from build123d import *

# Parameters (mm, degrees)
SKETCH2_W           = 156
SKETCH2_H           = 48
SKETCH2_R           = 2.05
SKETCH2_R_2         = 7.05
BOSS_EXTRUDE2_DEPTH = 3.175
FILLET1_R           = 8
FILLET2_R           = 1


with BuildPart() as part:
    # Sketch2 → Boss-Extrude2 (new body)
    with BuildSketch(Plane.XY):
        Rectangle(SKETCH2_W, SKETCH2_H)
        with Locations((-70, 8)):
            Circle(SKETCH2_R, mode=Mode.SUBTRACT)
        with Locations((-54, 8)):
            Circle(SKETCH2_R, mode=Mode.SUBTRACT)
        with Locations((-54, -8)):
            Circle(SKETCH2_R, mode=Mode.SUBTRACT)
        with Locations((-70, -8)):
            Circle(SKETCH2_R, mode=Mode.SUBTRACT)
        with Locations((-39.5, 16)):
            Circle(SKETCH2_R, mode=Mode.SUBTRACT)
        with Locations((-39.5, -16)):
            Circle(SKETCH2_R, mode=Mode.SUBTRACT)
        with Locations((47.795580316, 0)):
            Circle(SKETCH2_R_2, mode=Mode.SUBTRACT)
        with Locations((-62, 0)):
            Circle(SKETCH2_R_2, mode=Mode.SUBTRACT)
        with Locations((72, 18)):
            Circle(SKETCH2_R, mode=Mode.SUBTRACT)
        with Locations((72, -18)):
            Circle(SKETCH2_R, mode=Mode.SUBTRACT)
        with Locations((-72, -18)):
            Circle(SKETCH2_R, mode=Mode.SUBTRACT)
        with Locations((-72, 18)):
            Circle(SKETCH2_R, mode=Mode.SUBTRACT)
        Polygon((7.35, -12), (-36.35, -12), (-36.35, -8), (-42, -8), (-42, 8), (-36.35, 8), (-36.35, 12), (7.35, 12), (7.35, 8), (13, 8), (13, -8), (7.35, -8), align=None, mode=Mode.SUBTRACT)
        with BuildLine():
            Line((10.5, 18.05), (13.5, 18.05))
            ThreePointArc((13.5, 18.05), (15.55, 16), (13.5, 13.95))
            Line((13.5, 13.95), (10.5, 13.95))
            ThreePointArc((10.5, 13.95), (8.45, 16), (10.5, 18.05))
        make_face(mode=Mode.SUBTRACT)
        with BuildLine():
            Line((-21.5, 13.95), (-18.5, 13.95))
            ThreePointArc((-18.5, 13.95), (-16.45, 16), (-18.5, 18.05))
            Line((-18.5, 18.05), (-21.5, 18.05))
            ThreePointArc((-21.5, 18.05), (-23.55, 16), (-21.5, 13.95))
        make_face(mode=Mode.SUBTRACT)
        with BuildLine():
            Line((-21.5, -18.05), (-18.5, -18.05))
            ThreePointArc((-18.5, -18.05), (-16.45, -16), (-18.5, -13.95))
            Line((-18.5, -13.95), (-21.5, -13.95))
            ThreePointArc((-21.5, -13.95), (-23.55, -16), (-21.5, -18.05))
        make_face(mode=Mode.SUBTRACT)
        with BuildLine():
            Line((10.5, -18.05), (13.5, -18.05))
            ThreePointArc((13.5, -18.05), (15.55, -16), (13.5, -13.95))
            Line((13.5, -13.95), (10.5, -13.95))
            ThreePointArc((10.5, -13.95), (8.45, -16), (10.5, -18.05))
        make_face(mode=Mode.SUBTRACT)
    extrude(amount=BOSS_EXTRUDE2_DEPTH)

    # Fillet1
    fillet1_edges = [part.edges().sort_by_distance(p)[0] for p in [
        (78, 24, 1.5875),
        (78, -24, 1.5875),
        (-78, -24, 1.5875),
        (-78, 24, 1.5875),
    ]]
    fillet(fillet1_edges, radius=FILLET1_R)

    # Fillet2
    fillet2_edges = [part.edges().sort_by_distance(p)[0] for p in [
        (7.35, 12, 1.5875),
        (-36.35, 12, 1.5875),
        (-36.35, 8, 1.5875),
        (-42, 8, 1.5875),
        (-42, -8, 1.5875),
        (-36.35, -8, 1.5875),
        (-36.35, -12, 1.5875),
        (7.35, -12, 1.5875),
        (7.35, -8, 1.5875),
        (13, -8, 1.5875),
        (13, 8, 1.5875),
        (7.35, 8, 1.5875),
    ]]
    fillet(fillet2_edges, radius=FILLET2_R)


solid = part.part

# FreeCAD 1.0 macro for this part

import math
import FreeCAD as App
import Part
import Sketcher


def edges_at(feature, points):
    """Names of the edges that pass closest to the given points."""
    edges = feature.Shape.Edges
    near = lambda p: min(range(len(edges)), key=lambda i: edges[i].distToShape(Part.Vertex(*p))[0])
    return sorted({f"Edge{near(p) + 1}" for p in points})

doc = App.newDocument("Part")
params = doc.addObject("Spreadsheet::Sheet", "Params")
for row, (alias, value) in enumerate([
    ("sketch1_diameter", "4.1 mm"),
    ("sketch1_diameter2", "14.1 mm"),
    ("sketch1_width", "156 mm"),
    ("sketch1_width2", "3 mm"),
    ("sketch1_height", "48 mm"),
    ("pad1_length", "3.175 mm"),
    ("fillet_radius", "8 mm"),
    ("fillet2_radius", "1 mm"),
], start=1):
    params.set(f"A{row}", alias)
    params.set(f"B{row}", "=" + value)
    params.setAlias(f"B{row}", alias)

body = doc.addObject("PartDesign::Body", "Body")

sketch1 = body.newObject("Sketcher::SketchObject", "Sketch")
sketch1.AttachmentSupport = (doc.getObject("XY_Plane"), [""])
sketch1.MapMode = "FlatFace"
sketch1.addGeometry([
    Part.LineSegment(App.Vector(-78, 24, 0), App.Vector(-78, -24, 0)),
    Part.LineSegment(App.Vector(-78, -24, 0), App.Vector(78, -24, 0)),
    Part.LineSegment(App.Vector(78, -24, 0), App.Vector(78, 24, 0)),
    Part.LineSegment(App.Vector(78, 24, 0), App.Vector(-78, 24, 0)),
    Part.Circle(App.Vector(-72, -18, 0), App.Vector(0, 0, 1), 2.05),
    Part.Circle(App.Vector(-39.5, -16, 0), App.Vector(0, 0, 1), 2.05),
    Part.LineSegment(App.Vector(-18.5, -18.05, 0), App.Vector(-21.5, -18.05, 0)),
    Part.ArcOfCircle(Part.Circle(App.Vector(-21.5, -16, 0), App.Vector(0, 0, 1), 2.05), math.radians(90), math.radians(270)),
    Part.LineSegment(App.Vector(-21.5, -13.95, 0), App.Vector(-18.5, -13.95, 0)),
    Part.ArcOfCircle(Part.Circle(App.Vector(-18.5, -16, 0), App.Vector(0, 0, 1), 2.05), math.radians(-90), math.radians(90)),
    Part.Circle(App.Vector(-70, -8, 0), App.Vector(0, 0, 1), 2.05),
    Part.Circle(App.Vector(-54, -8, 0), App.Vector(0, 0, 1), 2.05),
    Part.LineSegment(App.Vector(13.5, -18.05, 0), App.Vector(10.5, -18.05, 0)),
    Part.ArcOfCircle(Part.Circle(App.Vector(10.5, -16, 0), App.Vector(0, 0, 1), 2.05), math.radians(90), math.radians(270)),
    Part.LineSegment(App.Vector(10.5, -13.95, 0), App.Vector(13.5, -13.95, 0)),
    Part.ArcOfCircle(Part.Circle(App.Vector(13.5, -16, 0), App.Vector(0, 0, 1), 2.05), math.radians(-90), math.radians(90)),
    Part.Circle(App.Vector(72, -18, 0), App.Vector(0, 0, 1), 2.05),
    Part.Circle(App.Vector(-62, 0, 0), App.Vector(0, 0, 1), 7.05),
    Part.Circle(App.Vector(-70, 8, 0), App.Vector(0, 0, 1), 2.05),
    Part.Circle(App.Vector(-54, 8, 0), App.Vector(0, 0, 1), 2.05),
    Part.LineSegment(App.Vector(7.35, -8, 0), App.Vector(7.35, -12, 0)),
    Part.LineSegment(App.Vector(7.35, -12, 0), App.Vector(-36.35, -12, 0)),
    Part.LineSegment(App.Vector(-36.35, -12, 0), App.Vector(-36.35, -8, 0)),
    Part.LineSegment(App.Vector(-36.35, -8, 0), App.Vector(-42, -8, 0)),
    Part.LineSegment(App.Vector(-42, -8, 0), App.Vector(-42, 8, 0)),
    Part.LineSegment(App.Vector(-42, 8, 0), App.Vector(-36.35, 8, 0)),
    Part.LineSegment(App.Vector(-36.35, 8, 0), App.Vector(-36.35, 12, 0)),
    Part.LineSegment(App.Vector(-36.35, 12, 0), App.Vector(7.35, 12, 0)),
    Part.LineSegment(App.Vector(7.35, 12, 0), App.Vector(7.35, 8, 0)),
    Part.LineSegment(App.Vector(7.35, 8, 0), App.Vector(13, 8, 0)),
    Part.LineSegment(App.Vector(13, 8, 0), App.Vector(13, -8, 0)),
    Part.LineSegment(App.Vector(13, -8, 0), App.Vector(7.35, -8, 0)),
    Part.Circle(App.Vector(-72, 18, 0), App.Vector(0, 0, 1), 2.05),
    Part.Circle(App.Vector(-39.5, 16, 0), App.Vector(0, 0, 1), 2.05),
    Part.LineSegment(App.Vector(-18.5, 13.95, 0), App.Vector(-21.5, 13.95, 0)),
    Part.ArcOfCircle(Part.Circle(App.Vector(-21.5, 16, 0), App.Vector(0, 0, 1), 2.05), math.radians(90), math.radians(270)),
    Part.LineSegment(App.Vector(-21.5, 18.05, 0), App.Vector(-18.5, 18.05, 0)),
    Part.ArcOfCircle(Part.Circle(App.Vector(-18.5, 16, 0), App.Vector(0, 0, 1), 2.05), math.radians(-90), math.radians(90)),
    Part.Circle(App.Vector(47.79558, 0, 0), App.Vector(0, 0, 1), 7.05),
    Part.ArcOfCircle(Part.Circle(App.Vector(10.5, 16, 0), App.Vector(0, 0, 1), 2.05), math.radians(90), math.radians(270)),
    Part.LineSegment(App.Vector(10.5, 18.05, 0), App.Vector(13.5, 18.05, 0)),
    Part.ArcOfCircle(Part.Circle(App.Vector(13.5, 16, 0), App.Vector(0, 0, 1), 2.05), math.radians(-90), math.radians(90)),
    Part.LineSegment(App.Vector(13.5, 13.95, 0), App.Vector(10.5, 13.95, 0)),
    Part.Circle(App.Vector(72, 18, 0), App.Vector(0, 0, 1), 2.05),
], False)
sketch1.addConstraint([
    Sketcher.Constraint("Coincident", 0, 2, 1, 1),
    Sketcher.Constraint("Coincident", 1, 2, 2, 1),
    Sketcher.Constraint("Coincident", 2, 2, 3, 1),
    Sketcher.Constraint("Coincident", 3, 2, 0, 1),
    Sketcher.Constraint("Tangent", 6, 2, 7, 2),
    Sketcher.Constraint("Tangent", 7, 1, 8, 1),
    Sketcher.Constraint("Tangent", 8, 2, 9, 2),
    Sketcher.Constraint("Tangent", 9, 1, 6, 1),
    Sketcher.Constraint("Tangent", 12, 2, 13, 2),
    Sketcher.Constraint("Tangent", 13, 1, 14, 1),
    Sketcher.Constraint("Tangent", 14, 2, 15, 2),
    Sketcher.Constraint("Tangent", 15, 1, 12, 1),
    Sketcher.Constraint("Coincident", 20, 2, 21, 1),
    Sketcher.Constraint("Coincident", 21, 2, 22, 1),
    Sketcher.Constraint("Coincident", 22, 2, 23, 1),
    Sketcher.Constraint("Coincident", 23, 2, 24, 1),
    Sketcher.Constraint("Coincident", 24, 2, 25, 1),
    Sketcher.Constraint("Coincident", 25, 2, 26, 1),
    Sketcher.Constraint("Coincident", 26, 2, 27, 1),
    Sketcher.Constraint("Coincident", 27, 2, 28, 1),
    Sketcher.Constraint("Coincident", 28, 2, 29, 1),
    Sketcher.Constraint("Coincident", 29, 2, 30, 1),
    Sketcher.Constraint("Coincident", 30, 2, 31, 1),
    Sketcher.Constraint("Coincident", 31, 2, 20, 1),
    Sketcher.Constraint("Tangent", 34, 2, 35, 2),
    Sketcher.Constraint("Tangent", 35, 1, 36, 1),
    Sketcher.Constraint("Tangent", 36, 2, 37, 2),
    Sketcher.Constraint("Tangent", 37, 1, 34, 1),
    Sketcher.Constraint("Tangent", 39, 1, 40, 1),
    Sketcher.Constraint("Tangent", 40, 2, 41, 2),
    Sketcher.Constraint("Tangent", 41, 1, 42, 1),
    Sketcher.Constraint("Tangent", 42, 2, 39, 2),
    Sketcher.Constraint("Vertical", 0),
    Sketcher.Constraint("Horizontal", 1),
    Sketcher.Constraint("Vertical", 2),
    Sketcher.Constraint("Horizontal", 3),
    Sketcher.Constraint("Horizontal", 6),
    Sketcher.Constraint("Horizontal", 8),
    Sketcher.Constraint("Horizontal", 12),
    Sketcher.Constraint("Horizontal", 14),
    Sketcher.Constraint("Vertical", 20),
    Sketcher.Constraint("Horizontal", 21),
    Sketcher.Constraint("Vertical", 22),
    Sketcher.Constraint("Horizontal", 23),
    Sketcher.Constraint("Vertical", 24),
    Sketcher.Constraint("Horizontal", 25),
    Sketcher.Constraint("Vertical", 26),
    Sketcher.Constraint("Horizontal", 27),
    Sketcher.Constraint("Vertical", 28),
    Sketcher.Constraint("Horizontal", 29),
    Sketcher.Constraint("Vertical", 30),
    Sketcher.Constraint("Horizontal", 31),
    Sketcher.Constraint("Horizontal", 34),
    Sketcher.Constraint("Horizontal", 36),
    Sketcher.Constraint("Horizontal", 40),
    Sketcher.Constraint("Horizontal", 42),
    Sketcher.Constraint("Equal", 4, 5),
    Sketcher.Constraint("Equal", 5, 7),
    Sketcher.Constraint("Equal", 9, 10),
    Sketcher.Constraint("Equal", 10, 11),
    Sketcher.Constraint("Equal", 11, 13),
    Sketcher.Constraint("Equal", 15, 16),
    Sketcher.Constraint("Equal", 16, 18),
    Sketcher.Constraint("Equal", 18, 19),
    Sketcher.Constraint("Equal", 19, 32),
    Sketcher.Constraint("Equal", 32, 33),
    Sketcher.Constraint("Equal", 33, 35),
    Sketcher.Constraint("Equal", 17, 38),
    Sketcher.Constraint("Equal", 37, 39),
    Sketcher.Constraint("Equal", 41, 43),
    Sketcher.Constraint("Symmetric", 16, 3, 32, 3, -1, 1),
    Sketcher.Constraint("Symmetric", 4, 3, 43, 3, -1, 1),
    Sketcher.Constraint("Symmetric", 0, 2, 2, 2, -1, 1),
    Sketcher.Constraint("Symmetric", 4, 3, 16, 3, -2),
    Sketcher.Constraint("Symmetric", 10, 3, 18, 3, -1),
    Sketcher.Constraint("Symmetric", 11, 3, 19, 3, -1),
    Sketcher.Constraint("Symmetric", 5, 3, 33, 3, -1),
    Sketcher.Constraint("Symmetric", 7, 3, 35, 3, -1),
    Sketcher.Constraint("Symmetric", 13, 3, 39, 3, -1),
    Sketcher.Constraint("Symmetric", 22, 2, 25, 2, -1),
    Sketcher.Constraint("Symmetric", 20, 2, 27, 2, -1),
    Sketcher.Constraint("PointOnObject", 17, 3, -1),
    Sketcher.Constraint("PointOnObject", 38, 3, -1),
    Sketcher.Constraint("Horizontal", 5, 3, 7, 3),
    Sketcher.Constraint("Horizontal", 10, 3, 11, 3),
    Sketcher.Constraint("Horizontal", 9, 3, 13, 3),
    Sketcher.Constraint("Horizontal", 11, 3, 22, 2),
    Sketcher.Constraint("Horizontal", 25, 2, 28, 2),
    Sketcher.Constraint("Horizontal", 23, 2, 30, 2),
    Sketcher.Constraint("Vertical", 9, 3, 37, 3),
    Sketcher.Constraint("Vertical", 15, 3, 41, 3),
    Sketcher.Constraint("Equal", 8, 12),
    Sketcher.Constraint("Equal", 25, 29),
    Sketcher.Constraint("Diameter", 4, 4.1),
    Sketcher.Constraint("Diameter", 17, 14.1),
    Sketcher.Constraint("DistanceX", 1, 1, 1, 2, 156.0),
    Sketcher.Constraint("DistanceX", 6, 2, 6, 1, 3.0),
    Sketcher.Constraint("DistanceY", 0, 2, 0, 1, 48.0),
    Sketcher.Constraint("DistanceY", 20, 2, 20, 1, 4.0),
    Sketcher.Constraint("DistanceY", 24, 1, 24, 2, 16.0),
    Sketcher.Constraint("DistanceX", 21, 2, 21, 1, 43.7),
    Sketcher.Constraint("DistanceX", 4, 3, -1, 1, 72.0),
    Sketcher.Constraint("DistanceY", 4, 3, -1, 1, 18.0),
    Sketcher.Constraint("DistanceY", 5, 3, -1, 1, 16.0),
    Sketcher.Constraint("DistanceX", 10, 3, -1, 1, 70.0),
    Sketcher.Constraint("DistanceX", 11, 3, -1, 1, 54.0),
    Sketcher.Constraint("DistanceX", 17, 3, -1, 1, 62.0),
    Sketcher.Constraint("DistanceX", 23, 2, -1, 1, 42.0),
    Sketcher.Constraint("DistanceX", -1, 1, 29, 2, 13.0),
    Sketcher.Constraint("DistanceX", 5, 3, 7, 3, 18.0),
    Sketcher.Constraint("DistanceX", 9, 3, 13, 3, 29.0),
    Sketcher.Constraint("DistanceX", 5, 3, -1, 1, 39.5),
    Sketcher.Constraint("DistanceX", -1, 1, 38, 3, 47.79558),
])
sketch1.setExpression("Constraints[93]", "Params.sketch1_diameter")
sketch1.setExpression("Constraints[94]", "Params.sketch1_diameter2")
sketch1.setExpression("Constraints[95]", "Params.sketch1_width")
sketch1.setExpression("Constraints[96]", "Params.sketch1_width2")
sketch1.setExpression("Constraints[97]", "Params.sketch1_height")
pad1 = body.newObject("PartDesign::Pad", "Pad")
pad1.Profile = sketch1
pad1.setExpression("Length", "Params.pad1_length")
doc.recompute()

fillet = body.newObject("PartDesign::Fillet", "Fillet")
fillet.Base = (pad1, edges_at(pad1, [
    (78, 24, 1.587),
    (78, -24, 1.587),
    (-78, -24, 1.587),
    (-78, 24, 1.587),
]))
fillet.setExpression("Radius", "Params.fillet_radius")
doc.recompute()

fillet2 = body.newObject("PartDesign::Fillet", "Fillet001")
fillet2.Base = (fillet, edges_at(fillet, [
    (7.35, 12, 1.587),
    (-36.35, 12, 1.587),
    (-36.35, 8, 1.587),
    (-42, 8, 1.587),
    (-42, -8, 1.587),
    (-36.35, -8, 1.587),
    (-36.35, -12, 1.587),
    (7.35, -12, 1.587),
    (7.35, -8, 1.587),
    (13, -8, 1.587),
    (13, 8, 1.587),
    (7.35, 8, 1.587),
]))
fillet2.setExpression("Radius", "Params.fillet2_radius")

doc.recompute()
